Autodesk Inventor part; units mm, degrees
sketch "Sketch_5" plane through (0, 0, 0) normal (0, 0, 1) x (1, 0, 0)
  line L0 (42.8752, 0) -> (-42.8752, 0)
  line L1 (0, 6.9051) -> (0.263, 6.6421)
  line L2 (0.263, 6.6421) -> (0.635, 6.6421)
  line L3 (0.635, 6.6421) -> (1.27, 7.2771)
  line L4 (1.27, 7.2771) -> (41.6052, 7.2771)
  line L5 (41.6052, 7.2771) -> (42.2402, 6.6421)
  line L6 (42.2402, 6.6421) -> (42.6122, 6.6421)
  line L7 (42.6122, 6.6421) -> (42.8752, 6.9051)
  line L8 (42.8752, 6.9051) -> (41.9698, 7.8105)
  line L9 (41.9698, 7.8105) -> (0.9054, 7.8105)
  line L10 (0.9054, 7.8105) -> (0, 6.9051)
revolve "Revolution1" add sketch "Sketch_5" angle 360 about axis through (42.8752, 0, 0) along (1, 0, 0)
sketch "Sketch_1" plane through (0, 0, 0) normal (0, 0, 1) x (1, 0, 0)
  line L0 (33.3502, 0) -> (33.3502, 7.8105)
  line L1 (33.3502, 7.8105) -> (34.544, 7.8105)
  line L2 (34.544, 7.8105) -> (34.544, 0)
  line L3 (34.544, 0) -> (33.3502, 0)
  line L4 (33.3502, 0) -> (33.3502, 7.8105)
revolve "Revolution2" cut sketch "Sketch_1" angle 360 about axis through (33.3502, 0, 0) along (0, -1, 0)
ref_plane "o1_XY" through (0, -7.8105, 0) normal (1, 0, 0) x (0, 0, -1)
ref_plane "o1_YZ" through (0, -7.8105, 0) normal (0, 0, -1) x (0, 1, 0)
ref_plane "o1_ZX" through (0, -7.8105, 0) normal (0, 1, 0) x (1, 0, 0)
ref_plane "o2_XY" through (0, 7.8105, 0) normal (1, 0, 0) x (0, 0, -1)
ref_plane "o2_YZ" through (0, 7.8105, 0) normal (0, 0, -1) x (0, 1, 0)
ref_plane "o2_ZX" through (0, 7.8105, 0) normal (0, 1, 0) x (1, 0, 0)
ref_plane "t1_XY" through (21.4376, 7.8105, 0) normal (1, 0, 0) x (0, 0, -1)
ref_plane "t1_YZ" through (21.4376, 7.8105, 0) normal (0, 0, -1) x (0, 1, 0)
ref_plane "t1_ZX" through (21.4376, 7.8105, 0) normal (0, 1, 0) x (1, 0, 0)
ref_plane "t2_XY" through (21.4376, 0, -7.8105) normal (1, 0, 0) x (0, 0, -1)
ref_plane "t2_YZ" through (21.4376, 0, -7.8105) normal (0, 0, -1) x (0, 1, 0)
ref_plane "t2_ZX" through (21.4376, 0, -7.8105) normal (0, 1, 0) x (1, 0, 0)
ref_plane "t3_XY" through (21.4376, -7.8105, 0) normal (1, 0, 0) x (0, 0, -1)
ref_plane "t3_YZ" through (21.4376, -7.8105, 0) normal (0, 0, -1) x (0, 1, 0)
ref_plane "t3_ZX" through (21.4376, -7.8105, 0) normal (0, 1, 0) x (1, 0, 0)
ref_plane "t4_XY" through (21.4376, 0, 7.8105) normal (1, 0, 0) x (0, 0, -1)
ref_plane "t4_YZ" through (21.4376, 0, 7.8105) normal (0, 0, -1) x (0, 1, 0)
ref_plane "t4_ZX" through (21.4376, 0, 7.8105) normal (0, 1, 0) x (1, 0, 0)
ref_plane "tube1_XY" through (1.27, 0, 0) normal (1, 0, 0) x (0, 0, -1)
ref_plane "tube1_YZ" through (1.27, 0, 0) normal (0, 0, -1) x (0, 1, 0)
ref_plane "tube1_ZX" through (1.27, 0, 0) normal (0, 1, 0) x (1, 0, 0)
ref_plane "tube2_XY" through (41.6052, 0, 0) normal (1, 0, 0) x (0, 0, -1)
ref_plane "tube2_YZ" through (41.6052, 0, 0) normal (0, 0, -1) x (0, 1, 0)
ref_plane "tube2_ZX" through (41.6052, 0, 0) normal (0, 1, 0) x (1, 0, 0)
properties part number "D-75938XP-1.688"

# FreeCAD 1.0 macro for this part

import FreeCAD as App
import Part
import Sketcher
from FreeCAD import Vector
Q = App.Units.Quantity

doc = App.newDocument("Part")
body = doc.addObject("PartDesign::Body", "Body")

sketch1 = body.newObject("Sketcher::SketchObject", "Sketch")
sketch1.AttachmentSupport = (doc.getObject("XY_Plane"), [""])
sketch1.MapMode = "FlatFace"
sketch1.addGeometry(Part.LineSegment(Vector(0.91, 7.81, 0), Vector(0, 6.91, 0)), False)
sketch1.addGeometry(Part.LineSegment(Vector(0, 6.91, 0), Vector(0.26, 6.64, 0)), False)
sketch1.addGeometry(Part.LineSegment(Vector(0.26, 6.64, 0), Vector(0.64, 6.64, 0)), False)
sketch1.addGeometry(Part.LineSegment(Vector(0.64, 6.64, 0), Vector(1.27, 7.28, 0)), False)
sketch1.addGeometry(Part.LineSegment(Vector(1.27, 7.28, 0), Vector(41.61, 7.28, 0)), False)
sketch1.addGeometry(Part.LineSegment(Vector(41.61, 7.28, 0), Vector(42.24, 6.64, 0)), False)
sketch1.addGeometry(Part.LineSegment(Vector(42.24, 6.64, 0), Vector(42.61, 6.64, 0)), False)
sketch1.addGeometry(Part.LineSegment(Vector(42.61, 6.64, 0), Vector(42.88, 6.91, 0)), False)
sketch1.addGeometry(Part.LineSegment(Vector(42.88, 6.91, 0), Vector(41.97, 7.81, 0)), False)
sketch1.addGeometry(Part.LineSegment(Vector(41.97, 7.81, 0), Vector(0.91, 7.81, 0)), False)
sketch1.addConstraint(Sketcher.Constraint("Coincident", 0, 2, 1, 1))
sketch1.addConstraint(Sketcher.Constraint("Coincident", 1, 2, 2, 1))
sketch1.addConstraint(Sketcher.Constraint("Coincident", 2, 2, 3, 1))
sketch1.addConstraint(Sketcher.Constraint("Coincident", 3, 2, 4, 1))
sketch1.addConstraint(Sketcher.Constraint("Coincident", 4, 2, 5, 1))
sketch1.addConstraint(Sketcher.Constraint("Coincident", 5, 2, 6, 1))
sketch1.addConstraint(Sketcher.Constraint("Coincident", 6, 2, 7, 1))
sketch1.addConstraint(Sketcher.Constraint("Coincident", 7, 2, 8, 1))
sketch1.addConstraint(Sketcher.Constraint("Coincident", 8, 2, 9, 1))
sketch1.addConstraint(Sketcher.Constraint("Coincident", 9, 2, 0, 1))
sketch1.addConstraint(Sketcher.Constraint("Horizontal", 2))
sketch1.addConstraint(Sketcher.Constraint("Horizontal", 4))
sketch1.addConstraint(Sketcher.Constraint("Horizontal", 6))
sketch1.addConstraint(Sketcher.Constraint("Horizontal", 9))
sketch1.addConstraint(Sketcher.Constraint("PointOnObject", 0, 2, -2))
sketch1.addConstraint(Sketcher.Constraint("Perpendicular", 0, 1))
sketch1.addConstraint(Sketcher.Constraint("Perpendicular", 1, 3))
sketch1.addConstraint(Sketcher.Constraint("Perpendicular", 3, 5))
sketch1.addConstraint(Sketcher.Constraint("Perpendicular", 5, 7))
sketch1.addConstraint(Sketcher.Constraint("Perpendicular", 7, 8))
sketch1.addConstraint(Sketcher.Constraint("Horizontal", 2, 2, 5, 2))
sketch1.addConstraint(Sketcher.Constraint("Horizontal", 0, 2, 7, 2))
sketch1.addConstraint(Sketcher.Constraint("Equal", 2, 6))
sketch1.addConstraint(Sketcher.Constraint("Equal", 3, 5))
sketch1.addConstraint(Sketcher.Constraint("DistanceX", 4, 1, 4, 2, Q("1.588 in")))
sketch1.addConstraint(Sketcher.Constraint("DistanceX", -1, 1, 3, 2, Q("0.05 in")))
sketch1.addConstraint(Sketcher.Constraint("DistanceX", 9, 2, 9, 1, Q("1.6167 in")))
sketch1.addConstraint(Sketcher.Constraint("DistanceX", -1, 1, 2, 2, Q("0.025 in")))
sketch1.addConstraint(Sketcher.Constraint("DistanceY", 4, 2, 8, 2, Q("0.021 in")))
sketch1.addConstraint(Sketcher.Constraint("DistanceY", -1, 1, 1, 2, Q("0.2615 in")))
revolution = body.newObject("PartDesign::Revolution", "Revolution")
revolution.Profile = sketch1
revolution.ReferenceAxis = (sketch1, ["H_Axis"])
revolution.Angle = 360

sketch2 = body.newObject("Sketcher::SketchObject", "Sketch001")
sketch2.AttachmentSupport = (doc.getObject("XY_Plane"), [""])
sketch2.MapMode = "FlatFace"
sketch2.addGeometry(Part.LineSegment(Vector(33.4, 7.8, 0), Vector(33.4, 0, 0)), False)
sketch2.addGeometry(Part.LineSegment(Vector(33.4, 0, 0), Vector(34.5, 0, 0)), False)
sketch2.addGeometry(Part.LineSegment(Vector(34.5, 0, 0), Vector(34.5, 7.8, 0)), False)
sketch2.addGeometry(Part.LineSegment(Vector(34.5, 7.8, 0), Vector(33.4, 7.8, 0)), False)
sketch2.addGeometry(Part.LineSegment(Vector(33.4, 7.8, 0), Vector(33.4, 0, 0)), True)
sketch2.addConstraint(Sketcher.Constraint("Coincident", 0, 2, 1, 1))
sketch2.addConstraint(Sketcher.Constraint("Coincident", 1, 2, 2, 1))
sketch2.addConstraint(Sketcher.Constraint("Coincident", 2, 2, 3, 1))
sketch2.addConstraint(Sketcher.Constraint("Coincident", 3, 2, 0, 1))
sketch2.addConstraint(Sketcher.Constraint("Vertical", 0))
sketch2.addConstraint(Sketcher.Constraint("Horizontal", 1))
sketch2.addConstraint(Sketcher.Constraint("Vertical", 2))
sketch2.addConstraint(Sketcher.Constraint("Horizontal", 3))
sketch2.addConstraint(Sketcher.Constraint("Vertical", 4))
sketch2.addConstraint(Sketcher.Constraint("Coincident", 4, 1, 3, 2))
sketch2.addConstraint(Sketcher.Constraint("PointOnObject", 0, 2, -1))
sketch2.addConstraint(Sketcher.Constraint("PointOnObject", 4, 2, -1))
sketch2.addConstraint(Sketcher.Constraint("DistanceX", 1, 1, 1, 2, Q("0.047 in")))
sketch2.addConstraint(Sketcher.Constraint("DistanceX", -1, 1, 1, 2, Q("1.36 in")))
sketch2.addConstraint(Sketcher.Constraint("DistanceY", 0, 2, 0, 1, Q("0.3075 in")))
groove = body.newObject("PartDesign::Groove", "Groove")
groove.Profile = sketch2
groove.ReferenceAxis = (sketch2, ["Axis0"])
groove.Angle = 360

doc.recompute()
